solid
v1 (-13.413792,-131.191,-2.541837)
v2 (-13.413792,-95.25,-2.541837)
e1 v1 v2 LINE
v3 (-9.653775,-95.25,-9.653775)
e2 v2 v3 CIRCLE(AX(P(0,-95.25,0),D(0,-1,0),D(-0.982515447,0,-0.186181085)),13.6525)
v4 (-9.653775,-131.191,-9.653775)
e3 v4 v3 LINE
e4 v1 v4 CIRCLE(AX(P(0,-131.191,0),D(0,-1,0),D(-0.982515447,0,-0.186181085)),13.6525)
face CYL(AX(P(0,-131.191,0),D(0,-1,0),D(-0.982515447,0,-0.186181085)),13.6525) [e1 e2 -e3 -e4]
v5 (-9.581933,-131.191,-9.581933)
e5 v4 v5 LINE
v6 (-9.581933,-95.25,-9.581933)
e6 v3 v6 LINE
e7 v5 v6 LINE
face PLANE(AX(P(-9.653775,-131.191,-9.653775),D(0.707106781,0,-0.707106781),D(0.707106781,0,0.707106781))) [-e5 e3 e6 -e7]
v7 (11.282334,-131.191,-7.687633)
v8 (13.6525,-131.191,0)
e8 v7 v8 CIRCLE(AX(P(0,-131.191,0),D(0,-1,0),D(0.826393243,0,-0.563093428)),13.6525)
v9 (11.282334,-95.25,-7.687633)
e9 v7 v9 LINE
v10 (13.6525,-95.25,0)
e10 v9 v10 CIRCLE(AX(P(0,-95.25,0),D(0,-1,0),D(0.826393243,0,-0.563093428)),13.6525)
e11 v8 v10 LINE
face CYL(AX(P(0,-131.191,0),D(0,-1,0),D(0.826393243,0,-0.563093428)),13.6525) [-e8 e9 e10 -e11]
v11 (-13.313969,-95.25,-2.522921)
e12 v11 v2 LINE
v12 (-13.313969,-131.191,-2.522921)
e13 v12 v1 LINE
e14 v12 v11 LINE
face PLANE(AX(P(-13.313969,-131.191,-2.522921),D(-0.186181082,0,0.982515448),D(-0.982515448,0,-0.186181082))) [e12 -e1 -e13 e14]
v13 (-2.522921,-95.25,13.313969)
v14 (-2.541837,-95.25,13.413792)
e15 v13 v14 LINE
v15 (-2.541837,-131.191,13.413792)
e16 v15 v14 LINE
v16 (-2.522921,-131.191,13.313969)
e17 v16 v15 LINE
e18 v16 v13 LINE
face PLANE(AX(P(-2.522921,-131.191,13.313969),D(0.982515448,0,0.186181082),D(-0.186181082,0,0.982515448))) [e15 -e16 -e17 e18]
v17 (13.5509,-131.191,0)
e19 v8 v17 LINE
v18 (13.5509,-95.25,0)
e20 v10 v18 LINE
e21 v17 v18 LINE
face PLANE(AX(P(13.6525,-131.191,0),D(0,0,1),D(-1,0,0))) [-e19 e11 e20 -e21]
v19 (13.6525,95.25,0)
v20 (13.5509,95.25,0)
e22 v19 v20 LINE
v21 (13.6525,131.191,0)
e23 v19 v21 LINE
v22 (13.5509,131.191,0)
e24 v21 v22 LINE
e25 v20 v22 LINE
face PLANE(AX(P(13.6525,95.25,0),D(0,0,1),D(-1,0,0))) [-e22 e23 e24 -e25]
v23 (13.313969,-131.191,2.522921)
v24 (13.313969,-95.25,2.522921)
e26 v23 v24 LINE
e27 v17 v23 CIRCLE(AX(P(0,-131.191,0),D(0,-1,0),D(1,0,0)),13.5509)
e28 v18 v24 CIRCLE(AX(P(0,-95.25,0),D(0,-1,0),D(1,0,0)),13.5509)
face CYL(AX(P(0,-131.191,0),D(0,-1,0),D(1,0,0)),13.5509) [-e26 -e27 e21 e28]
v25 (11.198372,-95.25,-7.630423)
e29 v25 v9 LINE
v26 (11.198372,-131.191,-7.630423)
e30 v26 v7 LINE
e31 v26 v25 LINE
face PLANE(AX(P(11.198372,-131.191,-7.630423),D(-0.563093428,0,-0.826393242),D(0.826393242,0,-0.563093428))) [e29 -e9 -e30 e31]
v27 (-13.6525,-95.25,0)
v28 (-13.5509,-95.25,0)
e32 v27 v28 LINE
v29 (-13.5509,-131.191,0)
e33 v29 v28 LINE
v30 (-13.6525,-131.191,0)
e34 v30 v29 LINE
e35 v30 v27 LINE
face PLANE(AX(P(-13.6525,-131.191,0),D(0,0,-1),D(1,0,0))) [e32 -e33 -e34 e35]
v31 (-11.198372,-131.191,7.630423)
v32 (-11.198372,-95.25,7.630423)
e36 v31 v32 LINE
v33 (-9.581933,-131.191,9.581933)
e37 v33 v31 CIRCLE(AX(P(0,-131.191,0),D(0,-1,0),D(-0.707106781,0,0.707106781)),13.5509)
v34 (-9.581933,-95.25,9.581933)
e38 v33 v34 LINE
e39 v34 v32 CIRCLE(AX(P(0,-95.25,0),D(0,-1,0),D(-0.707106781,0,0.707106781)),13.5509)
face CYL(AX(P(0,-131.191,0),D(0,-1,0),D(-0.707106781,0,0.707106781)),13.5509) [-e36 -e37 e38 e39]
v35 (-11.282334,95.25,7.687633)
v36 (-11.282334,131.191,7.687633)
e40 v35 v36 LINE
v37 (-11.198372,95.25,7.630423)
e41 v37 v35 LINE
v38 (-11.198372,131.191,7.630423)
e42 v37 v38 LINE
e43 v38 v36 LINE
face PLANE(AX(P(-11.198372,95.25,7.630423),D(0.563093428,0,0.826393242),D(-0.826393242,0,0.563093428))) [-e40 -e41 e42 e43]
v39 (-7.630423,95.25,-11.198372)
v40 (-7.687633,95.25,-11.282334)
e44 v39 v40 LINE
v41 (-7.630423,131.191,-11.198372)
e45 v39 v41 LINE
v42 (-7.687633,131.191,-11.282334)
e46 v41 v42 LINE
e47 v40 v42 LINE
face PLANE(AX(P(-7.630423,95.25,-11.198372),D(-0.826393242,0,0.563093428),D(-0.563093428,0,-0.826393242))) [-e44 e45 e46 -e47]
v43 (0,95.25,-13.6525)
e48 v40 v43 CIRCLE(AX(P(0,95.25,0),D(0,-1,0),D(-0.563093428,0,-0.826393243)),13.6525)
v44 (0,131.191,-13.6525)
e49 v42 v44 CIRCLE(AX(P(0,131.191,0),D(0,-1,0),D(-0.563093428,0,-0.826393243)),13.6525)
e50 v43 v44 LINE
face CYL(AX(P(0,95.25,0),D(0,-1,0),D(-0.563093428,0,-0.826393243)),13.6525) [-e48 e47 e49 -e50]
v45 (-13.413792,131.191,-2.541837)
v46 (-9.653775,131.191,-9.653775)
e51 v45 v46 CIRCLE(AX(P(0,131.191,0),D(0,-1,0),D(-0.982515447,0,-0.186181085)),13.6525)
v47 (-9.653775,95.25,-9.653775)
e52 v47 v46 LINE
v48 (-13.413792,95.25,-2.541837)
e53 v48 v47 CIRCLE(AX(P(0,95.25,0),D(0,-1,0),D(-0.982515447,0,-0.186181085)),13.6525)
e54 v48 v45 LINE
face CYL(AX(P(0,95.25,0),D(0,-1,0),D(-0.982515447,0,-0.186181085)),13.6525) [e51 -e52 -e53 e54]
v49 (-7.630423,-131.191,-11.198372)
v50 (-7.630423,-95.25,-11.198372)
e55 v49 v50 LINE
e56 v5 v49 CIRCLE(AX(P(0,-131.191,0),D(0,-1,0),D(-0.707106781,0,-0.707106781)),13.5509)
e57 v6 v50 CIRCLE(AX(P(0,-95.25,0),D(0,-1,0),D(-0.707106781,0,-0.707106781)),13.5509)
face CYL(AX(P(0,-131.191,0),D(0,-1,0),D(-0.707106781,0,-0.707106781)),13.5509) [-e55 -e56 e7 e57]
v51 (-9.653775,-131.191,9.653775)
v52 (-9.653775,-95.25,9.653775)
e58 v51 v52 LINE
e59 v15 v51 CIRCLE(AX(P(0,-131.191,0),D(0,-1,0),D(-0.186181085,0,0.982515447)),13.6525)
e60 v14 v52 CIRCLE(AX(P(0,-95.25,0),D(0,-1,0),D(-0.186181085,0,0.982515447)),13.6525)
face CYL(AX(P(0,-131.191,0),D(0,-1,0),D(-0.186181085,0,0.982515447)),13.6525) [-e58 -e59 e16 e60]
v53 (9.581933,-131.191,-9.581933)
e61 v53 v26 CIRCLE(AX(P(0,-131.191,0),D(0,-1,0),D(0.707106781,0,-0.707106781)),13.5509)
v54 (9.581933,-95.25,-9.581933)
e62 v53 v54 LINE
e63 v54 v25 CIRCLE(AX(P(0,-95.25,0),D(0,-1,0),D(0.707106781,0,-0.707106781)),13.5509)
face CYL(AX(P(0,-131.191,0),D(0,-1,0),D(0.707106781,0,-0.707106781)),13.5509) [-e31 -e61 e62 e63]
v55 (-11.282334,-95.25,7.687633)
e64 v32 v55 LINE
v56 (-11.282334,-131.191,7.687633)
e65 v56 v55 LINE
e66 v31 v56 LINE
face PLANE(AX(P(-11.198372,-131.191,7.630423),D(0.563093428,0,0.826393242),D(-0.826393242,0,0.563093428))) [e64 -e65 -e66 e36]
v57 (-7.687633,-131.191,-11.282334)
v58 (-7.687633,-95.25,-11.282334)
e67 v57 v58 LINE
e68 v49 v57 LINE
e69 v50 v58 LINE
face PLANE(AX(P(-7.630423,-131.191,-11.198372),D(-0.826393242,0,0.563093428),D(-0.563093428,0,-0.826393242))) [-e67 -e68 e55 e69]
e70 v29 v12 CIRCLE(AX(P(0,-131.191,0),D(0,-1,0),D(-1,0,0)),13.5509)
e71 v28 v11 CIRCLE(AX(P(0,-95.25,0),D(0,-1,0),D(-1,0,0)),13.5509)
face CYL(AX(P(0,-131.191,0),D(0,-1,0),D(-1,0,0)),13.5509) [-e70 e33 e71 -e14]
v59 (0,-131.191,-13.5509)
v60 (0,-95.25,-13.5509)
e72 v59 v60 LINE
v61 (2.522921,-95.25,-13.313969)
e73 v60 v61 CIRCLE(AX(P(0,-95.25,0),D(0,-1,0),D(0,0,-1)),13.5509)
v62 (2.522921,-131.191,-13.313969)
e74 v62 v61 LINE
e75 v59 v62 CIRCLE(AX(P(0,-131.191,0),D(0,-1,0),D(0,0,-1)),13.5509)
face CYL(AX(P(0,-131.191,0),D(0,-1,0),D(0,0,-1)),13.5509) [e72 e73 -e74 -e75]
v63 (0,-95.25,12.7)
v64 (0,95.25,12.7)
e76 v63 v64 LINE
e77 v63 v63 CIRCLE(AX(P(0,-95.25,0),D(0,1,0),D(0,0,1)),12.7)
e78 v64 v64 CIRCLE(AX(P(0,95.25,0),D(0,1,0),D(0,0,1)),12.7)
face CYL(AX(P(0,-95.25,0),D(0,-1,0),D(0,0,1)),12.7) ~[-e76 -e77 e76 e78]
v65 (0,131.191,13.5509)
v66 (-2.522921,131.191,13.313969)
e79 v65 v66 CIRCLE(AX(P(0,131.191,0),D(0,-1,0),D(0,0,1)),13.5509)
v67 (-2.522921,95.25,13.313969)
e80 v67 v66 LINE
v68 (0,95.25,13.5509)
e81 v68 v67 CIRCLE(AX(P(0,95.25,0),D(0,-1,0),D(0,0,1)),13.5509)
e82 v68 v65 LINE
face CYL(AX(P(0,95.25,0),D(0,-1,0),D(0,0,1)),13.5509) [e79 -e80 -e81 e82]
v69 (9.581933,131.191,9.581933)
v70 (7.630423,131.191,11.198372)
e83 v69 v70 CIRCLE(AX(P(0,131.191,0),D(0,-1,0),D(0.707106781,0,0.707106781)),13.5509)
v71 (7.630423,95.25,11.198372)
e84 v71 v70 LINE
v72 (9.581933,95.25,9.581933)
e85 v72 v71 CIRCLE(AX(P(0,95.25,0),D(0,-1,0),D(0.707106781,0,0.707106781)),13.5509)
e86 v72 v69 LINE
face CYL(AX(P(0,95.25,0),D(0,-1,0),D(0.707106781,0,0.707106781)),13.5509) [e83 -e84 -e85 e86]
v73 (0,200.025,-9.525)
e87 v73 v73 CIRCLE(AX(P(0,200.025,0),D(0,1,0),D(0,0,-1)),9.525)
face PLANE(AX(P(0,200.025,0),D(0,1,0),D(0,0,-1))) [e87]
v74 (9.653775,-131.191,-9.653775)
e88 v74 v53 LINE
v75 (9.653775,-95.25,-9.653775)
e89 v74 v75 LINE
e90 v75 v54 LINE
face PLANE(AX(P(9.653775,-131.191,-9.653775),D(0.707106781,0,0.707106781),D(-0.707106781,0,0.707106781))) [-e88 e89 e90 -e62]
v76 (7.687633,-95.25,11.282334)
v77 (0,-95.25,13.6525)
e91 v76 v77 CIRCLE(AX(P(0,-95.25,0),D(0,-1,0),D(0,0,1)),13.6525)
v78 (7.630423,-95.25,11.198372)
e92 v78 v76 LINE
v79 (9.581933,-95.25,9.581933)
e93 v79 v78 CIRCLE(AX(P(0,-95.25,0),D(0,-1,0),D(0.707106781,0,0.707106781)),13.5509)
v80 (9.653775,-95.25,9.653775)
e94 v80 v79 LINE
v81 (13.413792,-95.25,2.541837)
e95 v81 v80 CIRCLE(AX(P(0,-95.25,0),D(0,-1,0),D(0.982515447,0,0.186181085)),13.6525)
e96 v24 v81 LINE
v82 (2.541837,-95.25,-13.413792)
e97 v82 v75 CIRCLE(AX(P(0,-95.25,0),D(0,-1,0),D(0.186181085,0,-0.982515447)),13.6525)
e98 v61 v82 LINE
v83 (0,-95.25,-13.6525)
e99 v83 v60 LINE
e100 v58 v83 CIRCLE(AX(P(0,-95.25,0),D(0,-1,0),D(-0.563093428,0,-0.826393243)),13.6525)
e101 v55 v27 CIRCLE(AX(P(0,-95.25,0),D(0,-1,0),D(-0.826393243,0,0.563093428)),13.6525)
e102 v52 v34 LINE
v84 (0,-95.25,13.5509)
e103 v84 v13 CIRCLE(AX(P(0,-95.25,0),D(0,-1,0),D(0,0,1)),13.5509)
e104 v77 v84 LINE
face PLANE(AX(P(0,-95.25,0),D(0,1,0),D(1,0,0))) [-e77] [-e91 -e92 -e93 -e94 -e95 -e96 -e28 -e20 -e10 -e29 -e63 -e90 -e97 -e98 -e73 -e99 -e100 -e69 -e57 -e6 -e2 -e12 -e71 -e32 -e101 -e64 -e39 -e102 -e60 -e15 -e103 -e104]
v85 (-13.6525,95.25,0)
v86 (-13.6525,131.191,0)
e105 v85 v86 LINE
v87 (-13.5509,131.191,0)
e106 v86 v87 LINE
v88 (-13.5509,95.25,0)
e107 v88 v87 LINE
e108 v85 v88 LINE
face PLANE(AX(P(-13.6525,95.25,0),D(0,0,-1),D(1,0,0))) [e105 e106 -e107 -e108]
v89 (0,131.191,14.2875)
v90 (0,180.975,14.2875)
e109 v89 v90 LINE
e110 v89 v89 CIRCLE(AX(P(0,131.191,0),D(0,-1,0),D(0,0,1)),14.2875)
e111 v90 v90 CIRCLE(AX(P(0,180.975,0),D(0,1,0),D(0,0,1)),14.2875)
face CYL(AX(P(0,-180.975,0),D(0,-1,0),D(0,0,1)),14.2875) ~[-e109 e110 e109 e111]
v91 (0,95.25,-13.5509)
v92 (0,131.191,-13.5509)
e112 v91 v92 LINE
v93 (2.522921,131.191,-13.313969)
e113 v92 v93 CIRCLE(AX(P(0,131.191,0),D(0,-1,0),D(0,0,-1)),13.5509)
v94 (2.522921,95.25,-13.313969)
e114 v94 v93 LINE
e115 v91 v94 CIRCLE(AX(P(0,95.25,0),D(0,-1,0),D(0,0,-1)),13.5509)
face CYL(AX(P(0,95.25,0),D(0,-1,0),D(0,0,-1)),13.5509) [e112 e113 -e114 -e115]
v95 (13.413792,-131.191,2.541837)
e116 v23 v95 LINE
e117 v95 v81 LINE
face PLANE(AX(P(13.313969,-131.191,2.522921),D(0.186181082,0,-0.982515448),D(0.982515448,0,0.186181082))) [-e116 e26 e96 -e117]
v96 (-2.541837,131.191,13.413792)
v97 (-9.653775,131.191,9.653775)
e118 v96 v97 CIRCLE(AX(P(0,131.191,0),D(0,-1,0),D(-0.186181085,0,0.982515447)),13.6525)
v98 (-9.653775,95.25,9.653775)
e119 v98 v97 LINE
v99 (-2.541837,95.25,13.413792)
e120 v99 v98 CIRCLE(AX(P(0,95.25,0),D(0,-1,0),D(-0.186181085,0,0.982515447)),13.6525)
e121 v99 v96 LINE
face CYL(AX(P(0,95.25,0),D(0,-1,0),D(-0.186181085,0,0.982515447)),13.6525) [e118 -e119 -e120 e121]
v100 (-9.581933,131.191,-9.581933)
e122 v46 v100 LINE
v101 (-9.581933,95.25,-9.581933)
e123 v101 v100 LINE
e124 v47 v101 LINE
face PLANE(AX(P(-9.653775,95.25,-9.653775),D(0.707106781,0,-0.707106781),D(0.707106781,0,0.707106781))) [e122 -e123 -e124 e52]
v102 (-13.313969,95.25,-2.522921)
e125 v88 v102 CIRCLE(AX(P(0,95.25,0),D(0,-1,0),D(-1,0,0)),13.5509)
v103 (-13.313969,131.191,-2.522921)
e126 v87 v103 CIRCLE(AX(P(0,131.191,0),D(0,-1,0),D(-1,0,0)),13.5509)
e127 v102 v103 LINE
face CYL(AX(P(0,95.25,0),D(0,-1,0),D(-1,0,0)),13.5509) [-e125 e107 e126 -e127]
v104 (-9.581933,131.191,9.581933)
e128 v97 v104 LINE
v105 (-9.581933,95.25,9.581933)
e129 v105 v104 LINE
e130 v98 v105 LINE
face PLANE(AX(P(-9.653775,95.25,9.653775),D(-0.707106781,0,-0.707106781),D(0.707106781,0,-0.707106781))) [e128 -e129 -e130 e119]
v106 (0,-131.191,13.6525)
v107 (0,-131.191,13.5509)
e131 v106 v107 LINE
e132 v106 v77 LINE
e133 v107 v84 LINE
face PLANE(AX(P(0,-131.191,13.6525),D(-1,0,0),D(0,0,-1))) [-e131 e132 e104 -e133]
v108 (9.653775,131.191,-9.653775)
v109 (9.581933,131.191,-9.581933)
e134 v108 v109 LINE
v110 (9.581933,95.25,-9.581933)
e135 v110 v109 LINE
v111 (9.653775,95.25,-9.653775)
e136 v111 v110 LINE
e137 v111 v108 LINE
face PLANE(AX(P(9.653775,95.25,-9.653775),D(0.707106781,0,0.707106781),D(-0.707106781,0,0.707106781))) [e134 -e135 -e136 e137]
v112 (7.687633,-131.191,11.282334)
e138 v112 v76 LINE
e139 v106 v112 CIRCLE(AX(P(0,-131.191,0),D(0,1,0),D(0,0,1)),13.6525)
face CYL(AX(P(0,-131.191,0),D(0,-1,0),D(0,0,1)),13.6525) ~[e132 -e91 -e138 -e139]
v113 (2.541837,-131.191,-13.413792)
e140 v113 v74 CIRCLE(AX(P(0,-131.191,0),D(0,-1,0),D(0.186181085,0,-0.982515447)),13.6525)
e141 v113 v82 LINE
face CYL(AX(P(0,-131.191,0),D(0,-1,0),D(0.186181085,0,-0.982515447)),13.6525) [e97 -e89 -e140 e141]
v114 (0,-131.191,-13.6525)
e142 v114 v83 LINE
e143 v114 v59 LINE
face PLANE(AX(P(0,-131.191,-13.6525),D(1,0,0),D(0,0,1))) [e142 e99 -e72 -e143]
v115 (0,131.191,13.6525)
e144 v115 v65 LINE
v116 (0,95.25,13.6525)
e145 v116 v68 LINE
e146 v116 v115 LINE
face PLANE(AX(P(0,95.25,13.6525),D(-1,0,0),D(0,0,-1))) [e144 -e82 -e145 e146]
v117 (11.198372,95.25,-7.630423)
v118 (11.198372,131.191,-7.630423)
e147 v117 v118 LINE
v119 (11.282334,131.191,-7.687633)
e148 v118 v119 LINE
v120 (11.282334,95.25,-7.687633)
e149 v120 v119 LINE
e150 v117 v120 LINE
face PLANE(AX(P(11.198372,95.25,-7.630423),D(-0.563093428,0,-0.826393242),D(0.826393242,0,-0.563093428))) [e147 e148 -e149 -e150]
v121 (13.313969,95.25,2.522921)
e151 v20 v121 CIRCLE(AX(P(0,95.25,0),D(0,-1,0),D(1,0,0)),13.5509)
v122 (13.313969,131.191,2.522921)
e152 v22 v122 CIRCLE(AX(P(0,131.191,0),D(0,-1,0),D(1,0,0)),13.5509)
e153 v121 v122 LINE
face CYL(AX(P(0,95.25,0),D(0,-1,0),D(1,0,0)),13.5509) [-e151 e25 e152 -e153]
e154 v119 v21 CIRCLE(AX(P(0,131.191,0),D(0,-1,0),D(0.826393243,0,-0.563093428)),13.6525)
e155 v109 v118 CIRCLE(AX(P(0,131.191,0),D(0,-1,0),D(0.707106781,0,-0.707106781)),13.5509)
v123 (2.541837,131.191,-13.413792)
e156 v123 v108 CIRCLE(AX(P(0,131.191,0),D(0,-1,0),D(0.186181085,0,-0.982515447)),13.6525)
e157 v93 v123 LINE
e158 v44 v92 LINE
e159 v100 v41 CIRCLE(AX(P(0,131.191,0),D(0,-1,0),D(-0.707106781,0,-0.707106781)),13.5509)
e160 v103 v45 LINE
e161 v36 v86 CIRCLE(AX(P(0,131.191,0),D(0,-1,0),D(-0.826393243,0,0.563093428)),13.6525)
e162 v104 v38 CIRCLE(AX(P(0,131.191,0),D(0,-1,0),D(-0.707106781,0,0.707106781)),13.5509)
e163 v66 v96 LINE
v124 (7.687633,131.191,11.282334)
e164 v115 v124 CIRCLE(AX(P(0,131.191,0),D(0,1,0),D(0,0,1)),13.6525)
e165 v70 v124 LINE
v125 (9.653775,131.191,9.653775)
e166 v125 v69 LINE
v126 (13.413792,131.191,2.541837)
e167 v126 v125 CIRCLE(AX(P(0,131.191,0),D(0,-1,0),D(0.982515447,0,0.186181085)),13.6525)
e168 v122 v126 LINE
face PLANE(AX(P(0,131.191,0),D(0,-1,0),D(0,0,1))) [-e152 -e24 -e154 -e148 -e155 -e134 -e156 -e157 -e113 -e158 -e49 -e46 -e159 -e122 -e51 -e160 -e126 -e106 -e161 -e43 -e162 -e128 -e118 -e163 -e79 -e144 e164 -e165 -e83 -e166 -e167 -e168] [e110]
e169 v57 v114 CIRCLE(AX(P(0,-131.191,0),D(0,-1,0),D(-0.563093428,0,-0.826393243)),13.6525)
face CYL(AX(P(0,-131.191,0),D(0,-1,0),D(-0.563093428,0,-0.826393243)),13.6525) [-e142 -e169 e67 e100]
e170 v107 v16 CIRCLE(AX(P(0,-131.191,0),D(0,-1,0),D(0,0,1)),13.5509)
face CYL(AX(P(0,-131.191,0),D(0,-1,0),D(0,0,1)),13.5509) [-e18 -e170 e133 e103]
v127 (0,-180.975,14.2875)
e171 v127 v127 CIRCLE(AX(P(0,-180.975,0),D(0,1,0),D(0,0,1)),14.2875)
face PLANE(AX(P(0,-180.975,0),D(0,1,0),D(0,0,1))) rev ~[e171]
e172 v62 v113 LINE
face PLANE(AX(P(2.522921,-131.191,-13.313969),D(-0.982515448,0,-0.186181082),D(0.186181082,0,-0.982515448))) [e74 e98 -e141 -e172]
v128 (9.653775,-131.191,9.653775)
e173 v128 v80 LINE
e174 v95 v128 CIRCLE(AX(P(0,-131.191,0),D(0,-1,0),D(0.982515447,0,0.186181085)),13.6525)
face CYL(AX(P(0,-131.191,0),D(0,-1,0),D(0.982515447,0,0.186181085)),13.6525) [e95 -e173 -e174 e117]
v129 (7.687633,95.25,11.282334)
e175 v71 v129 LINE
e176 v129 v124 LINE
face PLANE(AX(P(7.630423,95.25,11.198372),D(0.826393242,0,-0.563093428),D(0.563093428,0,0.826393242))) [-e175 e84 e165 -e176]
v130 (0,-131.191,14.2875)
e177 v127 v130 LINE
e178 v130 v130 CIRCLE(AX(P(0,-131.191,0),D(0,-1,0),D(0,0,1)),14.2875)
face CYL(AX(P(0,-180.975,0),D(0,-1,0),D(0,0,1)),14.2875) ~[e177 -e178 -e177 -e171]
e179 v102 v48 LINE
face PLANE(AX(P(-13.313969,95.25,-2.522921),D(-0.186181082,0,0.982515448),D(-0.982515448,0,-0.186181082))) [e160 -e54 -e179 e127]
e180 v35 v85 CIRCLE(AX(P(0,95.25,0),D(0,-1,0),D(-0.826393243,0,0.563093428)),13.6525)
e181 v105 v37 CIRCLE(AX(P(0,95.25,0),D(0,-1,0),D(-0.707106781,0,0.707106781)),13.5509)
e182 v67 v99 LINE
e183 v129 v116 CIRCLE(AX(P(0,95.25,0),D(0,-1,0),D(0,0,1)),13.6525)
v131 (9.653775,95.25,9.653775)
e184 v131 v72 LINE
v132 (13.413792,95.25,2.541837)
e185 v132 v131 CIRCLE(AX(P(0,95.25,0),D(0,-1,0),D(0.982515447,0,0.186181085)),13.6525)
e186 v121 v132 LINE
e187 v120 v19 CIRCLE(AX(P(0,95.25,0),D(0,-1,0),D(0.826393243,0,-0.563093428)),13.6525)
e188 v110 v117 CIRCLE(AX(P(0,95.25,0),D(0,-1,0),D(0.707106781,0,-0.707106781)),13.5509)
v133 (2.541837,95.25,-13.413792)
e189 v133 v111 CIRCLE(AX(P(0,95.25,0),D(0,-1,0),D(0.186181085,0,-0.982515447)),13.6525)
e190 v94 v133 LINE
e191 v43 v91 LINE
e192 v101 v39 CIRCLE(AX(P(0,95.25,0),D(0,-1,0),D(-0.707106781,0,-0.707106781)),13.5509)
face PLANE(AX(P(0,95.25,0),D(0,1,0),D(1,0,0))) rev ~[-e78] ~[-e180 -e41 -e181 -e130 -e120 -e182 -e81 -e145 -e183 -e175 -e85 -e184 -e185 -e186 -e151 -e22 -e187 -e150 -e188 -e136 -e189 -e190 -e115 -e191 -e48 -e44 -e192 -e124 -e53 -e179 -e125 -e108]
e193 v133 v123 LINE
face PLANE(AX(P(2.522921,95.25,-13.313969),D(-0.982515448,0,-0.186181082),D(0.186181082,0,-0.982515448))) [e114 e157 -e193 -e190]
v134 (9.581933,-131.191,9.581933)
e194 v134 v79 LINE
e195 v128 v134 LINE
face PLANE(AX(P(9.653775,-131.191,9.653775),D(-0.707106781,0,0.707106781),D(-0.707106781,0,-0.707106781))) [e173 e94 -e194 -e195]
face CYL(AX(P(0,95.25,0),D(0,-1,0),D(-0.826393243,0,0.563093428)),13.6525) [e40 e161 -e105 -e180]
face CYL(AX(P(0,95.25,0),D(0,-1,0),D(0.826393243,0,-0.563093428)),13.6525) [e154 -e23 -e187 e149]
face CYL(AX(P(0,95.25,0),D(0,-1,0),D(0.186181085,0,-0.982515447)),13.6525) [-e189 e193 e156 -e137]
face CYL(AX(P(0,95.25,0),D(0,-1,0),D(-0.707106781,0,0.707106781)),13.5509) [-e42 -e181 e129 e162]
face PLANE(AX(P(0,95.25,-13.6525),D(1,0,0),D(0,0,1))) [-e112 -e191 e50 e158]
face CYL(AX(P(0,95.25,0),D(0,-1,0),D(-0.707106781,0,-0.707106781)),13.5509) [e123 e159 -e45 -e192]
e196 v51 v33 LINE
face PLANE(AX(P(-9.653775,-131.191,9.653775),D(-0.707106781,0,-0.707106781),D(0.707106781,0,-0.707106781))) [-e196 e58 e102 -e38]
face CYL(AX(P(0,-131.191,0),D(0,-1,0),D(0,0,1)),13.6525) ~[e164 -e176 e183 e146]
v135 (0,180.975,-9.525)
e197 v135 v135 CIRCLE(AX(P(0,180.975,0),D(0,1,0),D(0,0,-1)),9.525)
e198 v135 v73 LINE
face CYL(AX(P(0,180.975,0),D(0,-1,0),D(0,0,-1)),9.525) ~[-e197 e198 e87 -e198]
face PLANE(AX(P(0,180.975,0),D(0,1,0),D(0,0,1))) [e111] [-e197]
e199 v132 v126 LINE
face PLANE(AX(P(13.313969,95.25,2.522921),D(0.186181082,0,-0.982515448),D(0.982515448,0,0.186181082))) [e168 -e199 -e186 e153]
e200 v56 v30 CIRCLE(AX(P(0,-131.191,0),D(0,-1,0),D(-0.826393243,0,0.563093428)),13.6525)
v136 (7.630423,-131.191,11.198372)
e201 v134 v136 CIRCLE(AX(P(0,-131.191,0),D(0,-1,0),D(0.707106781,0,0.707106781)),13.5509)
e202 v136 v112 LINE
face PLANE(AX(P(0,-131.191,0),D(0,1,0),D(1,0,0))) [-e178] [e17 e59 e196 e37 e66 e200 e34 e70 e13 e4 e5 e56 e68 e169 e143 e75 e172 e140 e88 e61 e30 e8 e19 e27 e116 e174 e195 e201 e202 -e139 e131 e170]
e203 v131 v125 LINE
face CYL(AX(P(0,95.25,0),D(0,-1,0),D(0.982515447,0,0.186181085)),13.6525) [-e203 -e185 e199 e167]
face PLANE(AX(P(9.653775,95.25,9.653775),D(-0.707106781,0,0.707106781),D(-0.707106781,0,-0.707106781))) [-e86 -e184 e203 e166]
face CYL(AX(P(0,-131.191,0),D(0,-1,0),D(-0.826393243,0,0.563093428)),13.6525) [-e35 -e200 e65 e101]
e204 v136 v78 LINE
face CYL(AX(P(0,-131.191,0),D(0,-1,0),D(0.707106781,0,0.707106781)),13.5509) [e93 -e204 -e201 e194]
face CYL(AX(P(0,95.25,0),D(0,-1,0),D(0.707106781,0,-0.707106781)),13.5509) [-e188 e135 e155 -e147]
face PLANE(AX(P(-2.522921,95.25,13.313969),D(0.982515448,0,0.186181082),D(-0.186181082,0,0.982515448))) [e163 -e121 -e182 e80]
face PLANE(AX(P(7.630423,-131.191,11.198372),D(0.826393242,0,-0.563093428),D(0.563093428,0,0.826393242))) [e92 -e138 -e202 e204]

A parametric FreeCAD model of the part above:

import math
import FreeCAD as App
import Part
import Sketcher

V = App.Vector
Q = App.Units.Quantity

doc = App.newDocument("Part")
body = doc.addObject("PartDesign::Body", "Body")

sketch1 = body.newObject("Sketcher::SketchObject", "Sketch")
sketch1.AttachmentSupport = (doc.getObject("XZ_Plane"), [""])
sketch1.MapMode = "FlatFace"
sketch1.addGeometry(Part.Circle(V(0, 0, 0), V(0, 0, 1), 14.2875), False)
sketch1.addConstraint([
    Sketcher.Constraint("Coincident", 0, 3, -1, 1),
    Sketcher.Constraint("Diameter", 0, Q("1.125 in")),
])
pad1 = body.newObject("PartDesign::Pad", "Pad")
pad1.Profile = sketch1
pad1.Type = "TwoLengths"
pad1.Length = Q("7.125 in")
pad1.Length2 = Q("7.125 in")
pad1.Reversed = True

sketch2 = body.newObject("Sketcher::SketchObject", "Sketch001")
sketch2.AttachmentSupport = (doc.getObject("XZ_Plane"), [""])
sketch2.MapMode = "FlatFace"
sketch2.addGeometry([
    Part.LineSegment(V(-51.708, -51.708, 0), V(-51.708, 51.708, 0)),
    Part.LineSegment(V(-51.708, 51.708, 0), V(51.708, 51.708, 0)),
    Part.LineSegment(V(51.708, 51.708, 0), V(51.708, -51.708, 0)),
    Part.LineSegment(V(51.708, -51.708, 0), V(-51.708, -51.708, 0)),
    Part.Circle(V(0, 0, 0), V(0, 0, 1), 12.7),
], False)
sketch2.addConstraint([
    Sketcher.Constraint("Coincident", 0, 2, 1, 1),
    Sketcher.Constraint("Coincident", 1, 2, 2, 1),
    Sketcher.Constraint("Coincident", 2, 2, 3, 1),
    Sketcher.Constraint("Coincident", 3, 2, 0, 1),
    Sketcher.Constraint("Vertical", 0),
    Sketcher.Constraint("Horizontal", 1),
    Sketcher.Constraint("Vertical", 2),
    Sketcher.Constraint("Horizontal", 3),
    Sketcher.Constraint("Coincident", 4, 3, -1, 1),
    Sketcher.Constraint("Symmetric", 0, 2, 2, 2, -1, 1),
    Sketcher.Constraint("Equal", 3, 0),
    Sketcher.Constraint("Diameter", 4, Q("1 in")),
    Sketcher.Constraint("DistanceX", 1, 1, 1, 2, 103.416),
])
pocket1 = body.newObject("PartDesign::Pocket", "Pocket")
pocket1.Profile = sketch2
pocket1.Type = "TwoLengths"
pocket1.Length = Q("3.75 in")
pocket1.Length2 = Q("3.75 in")

sketch3 = body.newObject("Sketcher::SketchObject", "Sketch002")
sketch3.AttachmentSupport = (doc.getObject("XZ_Plane"), [""])
sketch3.MapMode = "FlatFace"
sketch3.addGeometry([
    Part.LineSegment(V(-51.708, -51.708, 0), V(-51.708, 51.708, 0)),
    Part.LineSegment(V(-51.708, 51.708, 0), V(51.708, 51.708, 0)),
    Part.LineSegment(V(51.708, 51.708, 0), V(51.708, -51.708, 0)),
    Part.LineSegment(V(51.708, -51.708, 0), V(-51.708, -51.708, 0)),
    Part.Circle(V(0, 0, 0), V(0, 0, 1), 13.6525),
], False)
sketch3.addConstraint([
    Sketcher.Constraint("Coincident", 0, 2, 1, 1),
    Sketcher.Constraint("Coincident", 1, 2, 2, 1),
    Sketcher.Constraint("Coincident", 2, 2, 3, 1),
    Sketcher.Constraint("Coincident", 3, 2, 0, 1),
    Sketcher.Constraint("Vertical", 0),
    Sketcher.Constraint("Horizontal", 1),
    Sketcher.Constraint("Vertical", 2),
    Sketcher.Constraint("Horizontal", 3),
    Sketcher.Constraint("Coincident", 4, 3, -1, 1),
    Sketcher.Constraint("Symmetric", 0, 2, 2, 2, -1, 1),
    Sketcher.Constraint("Equal", 3, 0),
    Sketcher.Constraint("Diameter", 4, Q("1.075 in")),
    Sketcher.Constraint("DistanceX", 1, 1, 1, 2, 103.416),
])
pocket2 = body.newObject("PartDesign::Pocket", "Pocket001")
pocket2.Profile = sketch3
pocket2.Type = "TwoLengths"
pocket2.Length = Q("5.165 in")
pocket2.Length2 = Q("5.165 in")

sketch4 = body.newObject("Sketcher::SketchObject", "Sketch003")
sketch4.AttachmentSupport = (doc.getObject("XZ_Plane"), [""])
sketch4.MapMode = "FlatFace"
sketch4.AttachmentOffset = App.Placement(V(0, 0, 5.165 * 25.4), App.Rotation())
sketch4.addGeometry([
    Part.LineSegment(V(-51.708, -51.708, 0), V(-51.708, 51.708, 0)),
    Part.LineSegment(V(-51.708, 51.708, 0), V(51.708, 51.708, 0)),
    Part.LineSegment(V(51.708, 51.708, 0), V(51.708, -51.708, 0)),
    Part.LineSegment(V(51.708, -51.708, 0), V(-51.708, -51.708, 0)),
    Part.ArcOfCircle(Part.Circle(V(0, 0, 0), V(0, 0, 1), 13.6525), math.radians(55.73), math.radians(90)),
    Part.LineSegment(V(0, 13.6525, 0), V(0, 13.5509, 0)),
    Part.ArcOfCircle(Part.Circle(V(0, 0, 0), V(0, 0, 1), 13.5509), math.radians(90), math.radians(100.73)),
    Part.LineSegment(V(-2.522921, 13.313969, 0), V(-2.541837, 13.413792, 0)),
    Part.ArcOfCircle(Part.Circle(V(0, 0, 0), V(0, 0, 1), 13.6525), math.radians(100.73), math.radians(135)),
    Part.LineSegment(V(-9.653775, 9.653775, 0), V(-9.581933, 9.581933, 0)),
    Part.ArcOfCircle(Part.Circle(V(0, 0, 0), V(0, 0, 1), 13.5509), math.radians(135), math.radians(145.73)),
    Part.LineSegment(V(-11.198372, 7.630423, 0), V(-11.282334, 7.687633, 0)),
    Part.ArcOfCircle(Part.Circle(V(0, 0, 0), V(0, 0, 1), 13.6525), math.radians(145.73), math.radians(180)),
    Part.LineSegment(V(-13.6525, 0, 0), V(-13.5509, 0, 0)),
    Part.ArcOfCircle(Part.Circle(V(0, 0, 0), V(0, 0, 1), 13.5509), math.radians(-180), math.radians(-169.27)),
    Part.LineSegment(V(-13.313969, -2.522921, 0), V(-13.413792, -2.541837, 0)),
    Part.ArcOfCircle(Part.Circle(V(0, 0, 0), V(0, 0, 1), 13.6525), math.radians(-169.27), math.radians(-135)),
    Part.LineSegment(V(-9.653775, -9.653775, 0), V(-9.581933, -9.581933, 0)),
    Part.ArcOfCircle(Part.Circle(V(0, 0, 0), V(0, 0, 1), 13.5509), math.radians(-135), math.radians(-124.27)),
    Part.LineSegment(V(-7.630423, -11.198372, 0), V(-7.687633, -11.282334, 0)),
    Part.ArcOfCircle(Part.Circle(V(0, 0, 0), V(0, 0, 1), 13.6525), math.radians(-124.27), math.radians(-90)),
    Part.LineSegment(V(0, -13.6525, 0), V(0, -13.5509, 0)),
    Part.ArcOfCircle(Part.Circle(V(0, 0, 0), V(0, 0, 1), 13.5509), math.radians(-90), math.radians(-79.27)),
    Part.LineSegment(V(2.522921, -13.313969, 0), V(2.541837, -13.413792, 0)),
    Part.ArcOfCircle(Part.Circle(V(0, 0, 0), V(0, 0, 1), 13.6525), math.radians(-79.27), math.radians(-45)),
    Part.LineSegment(V(9.653775, -9.653775, 0), V(9.581933, -9.581933, 0)),
    Part.ArcOfCircle(Part.Circle(V(0, 0, 0), V(0, 0, 1), 13.5509), math.radians(-45), math.radians(-34.27)),
    Part.LineSegment(V(11.198372, -7.630423, 0), V(11.282334, -7.687633, 0)),
    Part.ArcOfCircle(Part.Circle(V(0, 0, 0), V(0, 0, 1), 13.6525), math.radians(-34.27), math.radians(0)),
    Part.LineSegment(V(13.6525, 0, 0), V(13.5509, 0, 0)),
    Part.ArcOfCircle(Part.Circle(V(0, 0, 0), V(0, 0, 1), 13.5509), math.radians(0), math.radians(10.73)),
    Part.LineSegment(V(13.313969, 2.522921, 0), V(13.413792, 2.541837, 0)),
    Part.ArcOfCircle(Part.Circle(V(0, 0, 0), V(0, 0, 1), 13.6525), math.radians(10.73), math.radians(45)),
    Part.LineSegment(V(9.653775, 9.653775, 0), V(9.581933, 9.581933, 0)),
    Part.ArcOfCircle(Part.Circle(V(0, 0, 0), V(0, 0, 1), 13.5509), math.radians(45), math.radians(55.73)),
    Part.LineSegment(V(7.630423, 11.198372, 0), V(7.687633, 11.282334, 0)),
], False)
sketch4.addConstraint([
    Sketcher.Constraint("Coincident", 0, 2, 1, 1),
    Sketcher.Constraint("Coincident", 1, 2, 2, 1),
    Sketcher.Constraint("Coincident", 2, 2, 3, 1),
    Sketcher.Constraint("Coincident", 3, 2, 0, 1),
    Sketcher.Constraint("Coincident", 4, 2, 5, 1),
    Sketcher.Constraint("Coincident", 5, 2, 6, 1),
    Sketcher.Constraint("Coincident", 6, 2, 7, 1),
    Sketcher.Constraint("Coincident", 7, 2, 8, 1),
    Sketcher.Constraint("Coincident", 8, 2, 9, 1),
    Sketcher.Constraint("Coincident", 9, 2, 10, 1),
    Sketcher.Constraint("Coincident", 10, 2, 11, 1),
    Sketcher.Constraint("Coincident", 11, 2, 12, 1),
    Sketcher.Constraint("Coincident", 12, 2, 13, 1),
    Sketcher.Constraint("Coincident", 13, 2, 14, 1),
    Sketcher.Constraint("Coincident", 14, 2, 15, 1),
    Sketcher.Constraint("Coincident", 15, 2, 16, 1),
    Sketcher.Constraint("Coincident", 16, 2, 17, 1),
    Sketcher.Constraint("Coincident", 17, 2, 18, 1),
    Sketcher.Constraint("Coincident", 18, 2, 19, 1),
    Sketcher.Constraint("Coincident", 19, 2, 20, 1),
    Sketcher.Constraint("Coincident", 20, 2, 21, 1),
    Sketcher.Constraint("Coincident", 21, 2, 22, 1),
    Sketcher.Constraint("Coincident", 22, 2, 23, 1),
    Sketcher.Constraint("Coincident", 23, 2, 24, 1),
    Sketcher.Constraint("Coincident", 24, 2, 25, 1),
    Sketcher.Constraint("Coincident", 25, 2, 26, 1),
    Sketcher.Constraint("Coincident", 26, 2, 27, 1),
    Sketcher.Constraint("Coincident", 27, 2, 28, 1),
    Sketcher.Constraint("Coincident", 28, 2, 29, 1),
    Sketcher.Constraint("Coincident", 29, 2, 30, 1),
    Sketcher.Constraint("Coincident", 30, 2, 31, 1),
    Sketcher.Constraint("Coincident", 31, 2, 32, 1),
    Sketcher.Constraint("Coincident", 32, 2, 33, 1),
    Sketcher.Constraint("Coincident", 33, 2, 34, 1),
    Sketcher.Constraint("Coincident", 34, 2, 35, 1),
    Sketcher.Constraint("Coincident", 35, 2, 4, 1),
    Sketcher.Constraint("Vertical", 0),
    Sketcher.Constraint("Horizontal", 1),
    Sketcher.Constraint("Vertical", 2),
    Sketcher.Constraint("Horizontal", 3),
    Sketcher.Constraint("Vertical", 5),
    Sketcher.Constraint("Horizontal", 13),
    Sketcher.Constraint("Vertical", 21),
    Sketcher.Constraint("Horizontal", 29),
    Sketcher.Constraint("Coincident", 4, 3, -1, 1),
    Sketcher.Constraint("Coincident", 6, 3, -1, 1),
    Sketcher.Constraint("Coincident", 8, 3, -1, 1),
    Sketcher.Constraint("Coincident", 10, 3, -1, 1),
    Sketcher.Constraint("Coincident", 12, 3, -1, 1),
    Sketcher.Constraint("Coincident", 14, 3, -1, 1),
    Sketcher.Constraint("Coincident", 16, 3, -1, 1),
    Sketcher.Constraint("Coincident", 18, 3, -1, 1),
    Sketcher.Constraint("Coincident", 20, 3, -1, 1),
    Sketcher.Constraint("Coincident", 22, 3, -1, 1),
    Sketcher.Constraint("Coincident", 24, 3, -1, 1),
    Sketcher.Constraint("Coincident", 26, 3, -1, 1),
    Sketcher.Constraint("Coincident", 28, 3, -1, 1),
    Sketcher.Constraint("Coincident", 30, 3, -1, 1),
    Sketcher.Constraint("Coincident", 32, 3, -1, 1),
    Sketcher.Constraint("Coincident", 34, 3, -1, 1),
    Sketcher.Constraint("Equal", 4, 8),
    Sketcher.Constraint("Equal", 6, 10),
    Sketcher.Constraint("Equal", 8, 12),
    Sketcher.Constraint("Equal", 10, 14),
    Sketcher.Constraint("Equal", 12, 16),
    Sketcher.Constraint("Equal", 14, 18),
    Sketcher.Constraint("Equal", 16, 20),
    Sketcher.Constraint("Equal", 18, 22),
    Sketcher.Constraint("Equal", 20, 24),
    Sketcher.Constraint("Equal", 22, 26),
    Sketcher.Constraint("Equal", 24, 28),
    Sketcher.Constraint("Equal", 26, 30),
    Sketcher.Constraint("Equal", 28, 32),
    Sketcher.Constraint("Equal", 30, 34),
    Sketcher.Constraint("Symmetric", 0, 2, 2, 2, -1, 1),
    Sketcher.Constraint("PointOnObject", 4, 2, -2),
    Sketcher.Constraint("PointOnObject", 12, 2, -1),
    Sketcher.Constraint("PointOnObject", 20, 2, -2),
    Sketcher.Constraint("PointOnObject", 28, 2, -1),
    Sketcher.Constraint("Perpendicular", 7, 15),
    Sketcher.Constraint("Perpendicular", 9, 17),
    Sketcher.Constraint("Perpendicular", 11, 19),
    Sketcher.Constraint("Perpendicular", 15, 23),
    Sketcher.Constraint("Perpendicular", 17, 25),
    Sketcher.Constraint("Perpendicular", 19, 27),
    Sketcher.Constraint("Perpendicular", 23, 31),
    Sketcher.Constraint("Perpendicular", 25, 33),
    Sketcher.Constraint("Perpendicular", 27, 35),
    Sketcher.Constraint("Horizontal", 16, 2, 24, 2),
    Sketcher.Constraint("Horizontal", 17, 2, 25, 2),
    Sketcher.Constraint("Horizontal", 8, 2, 32, 2),
    Sketcher.Constraint("Vertical", 8, 2, 16, 2),
    Sketcher.Constraint("Equal", 3, 0),
    Sketcher.Constraint("Radius", 4, Q("0.5375 in")),
    Sketcher.Constraint("Radius", 6, Q("0.5335 in")),
    Sketcher.Constraint("Angle", 7, Q("100.73 deg")),
    Sketcher.Constraint("Angle", 11, Q("145.73 deg")),
    Sketcher.Constraint("DistanceX", 1, 1, 1, 2, 103.416),
    Sketcher.Constraint("DistanceX", 11, 2, 9, 2, 1.7004),
    Sketcher.Constraint("DistanceY", 11, 2, 9, 2, 1.8943),
    Sketcher.Constraint("DistanceX", 17, 2, 19, 2, 1.8943),
    Sketcher.Constraint("DistanceX", 25, 2, 27, 2, 1.7004),
    Sketcher.Constraint("DistanceX", 35, 2, 33, 2, 1.8943),
    Sketcher.Constraint("DistanceX", 6, 2, -1, 1, 2.522921),
    Sketcher.Constraint("DistanceX", 14, 2, -1, 1, 13.313969),
    Sketcher.Constraint("DistanceX", -1, 1, 22, 2, 2.522921),
    Sketcher.Constraint("DistanceX", -1, 1, 30, 2, 13.313969),
])
pocket3 = body.newObject("PartDesign::Pocket", "Pocket002")
pocket3.Profile = sketch4
pocket3.Length = Q("1.415 in")

sketch5 = body.newObject("Sketcher::SketchObject", "Sketch004")
sketch5.AttachmentSupport = (doc.getObject("XZ_Plane"), [""])
sketch5.MapMode = "FlatFace"
sketch5.AttachmentOffset = App.Placement(V(0, 0, -3.75 * 25.4), App.Rotation())
sketch5.addGeometry([
    Part.Circle(V(0, 0, 0), V(0, 0, 1), 14.2875),
    Part.LineSegment(V(-13.5509, 0, 0), V(-13.6525, 0, 0)),
    Part.ArcOfCircle(Part.Circle(V(0, 0, 0), V(0, 0, 1), 13.6525), math.radians(145.73), math.radians(180)),
    Part.LineSegment(V(-11.282334, 7.687633, 0), V(-11.198372, 7.630423, 0)),
    Part.ArcOfCircle(Part.Circle(V(0, 0, 0), V(0, 0, 1), 13.5509), math.radians(135), math.radians(145.73)),
    Part.LineSegment(V(-9.581933, 9.581933, 0), V(-9.653775, 9.653775, 0)),
    Part.ArcOfCircle(Part.Circle(V(0, 0, 0), V(0, 0, 1), 13.6525), math.radians(100.73), math.radians(135)),
    Part.LineSegment(V(-2.541837, 13.413792, 0), V(-2.522921, 13.313969, 0)),
    Part.ArcOfCircle(Part.Circle(V(0, 0, 0), V(0, 0, 1), 13.5509), math.radians(90), math.radians(100.73)),
    Part.LineSegment(V(0, 13.5509, 0), V(0, 13.6525, 0)),
    Part.ArcOfCircle(Part.Circle(V(0, 0, 0), V(0, 0, 1), 13.6525), math.radians(55.73), math.radians(90)),
    Part.LineSegment(V(7.687633, 11.282334, 0), V(7.630423, 11.198372, 0)),
    Part.ArcOfCircle(Part.Circle(V(0, 0, 0), V(0, 0, 1), 13.5509), math.radians(45), math.radians(55.73)),
    Part.LineSegment(V(9.581933, 9.581933, 0), V(9.653775, 9.653775, 0)),
    Part.ArcOfCircle(Part.Circle(V(0, 0, 0), V(0, 0, 1), 13.6525), math.radians(10.73), math.radians(45)),
    Part.LineSegment(V(13.413792, 2.541837, 0), V(13.313969, 2.522921, 0)),
    Part.ArcOfCircle(Part.Circle(V(0, 0, 0), V(0, 0, 1), 13.5509), math.radians(0), math.radians(10.73)),
    Part.LineSegment(V(13.5509, 0, 0), V(13.6525, 0, 0)),
    Part.ArcOfCircle(Part.Circle(V(0, 0, 0), V(0, 0, 1), 13.6525), math.radians(-34.27), math.radians(0)),
    Part.LineSegment(V(11.282334, -7.687633, 0), V(11.198372, -7.630423, 0)),
    Part.ArcOfCircle(Part.Circle(V(0, 0, 0), V(0, 0, 1), 13.5509), math.radians(-45), math.radians(-34.27)),
    Part.LineSegment(V(9.581933, -9.581933, 0), V(9.653775, -9.653775, 0)),
    Part.ArcOfCircle(Part.Circle(V(0, 0, 0), V(0, 0, 1), 13.6525), math.radians(-79.27), math.radians(-45)),
    Part.LineSegment(V(2.541837, -13.413792, 0), V(2.522921, -13.313969, 0)),
    Part.ArcOfCircle(Part.Circle(V(0, 0, 0), V(0, 0, 1), 13.5509), math.radians(-90), math.radians(-79.27)),
    Part.LineSegment(V(0, -13.5509, 0), V(0, -13.6525, 0)),
    Part.ArcOfCircle(Part.Circle(V(0, 0, 0), V(0, 0, 1), 13.6525), math.radians(-124.27), math.radians(-90)),
    Part.LineSegment(V(-7.687633, -11.282334, 0), V(-7.630423, -11.198372, 0)),
    Part.ArcOfCircle(Part.Circle(V(0, 0, 0), V(0, 0, 1), 13.5509), math.radians(-135), math.radians(-124.27)),
    Part.LineSegment(V(-9.581933, -9.581933, 0), V(-9.653775, -9.653775, 0)),
    Part.ArcOfCircle(Part.Circle(V(0, 0, 0), V(0, 0, 1), 13.6525), math.radians(-169.27), math.radians(-135)),
    Part.LineSegment(V(-13.413792, -2.541837, 0), V(-13.313969, -2.522921, 0)),
    Part.ArcOfCircle(Part.Circle(V(0, 0, 0), V(0, 0, 1), 13.5509), math.radians(-180), math.radians(-169.27)),
], False)
sketch5.addConstraint([
    Sketcher.Constraint("Coincident", 1, 2, 2, 2),
    Sketcher.Constraint("Coincident", 2, 1, 3, 1),
    Sketcher.Constraint("Coincident", 3, 2, 4, 2),
    Sketcher.Constraint("Coincident", 4, 1, 5, 1),
    Sketcher.Constraint("Coincident", 5, 2, 6, 2),
    Sketcher.Constraint("Coincident", 6, 1, 7, 1),
    Sketcher.Constraint("Coincident", 7, 2, 8, 2),
    Sketcher.Constraint("Coincident", 8, 1, 9, 1),
    Sketcher.Constraint("Coincident", 9, 2, 10, 2),
    Sketcher.Constraint("Coincident", 10, 1, 11, 1),
    Sketcher.Constraint("Coincident", 11, 2, 12, 2),
    Sketcher.Constraint("Coincident", 12, 1, 13, 1),
    Sketcher.Constraint("Coincident", 13, 2, 14, 2),
    Sketcher.Constraint("Coincident", 14, 1, 15, 1),
    Sketcher.Constraint("Coincident", 15, 2, 16, 2),
    Sketcher.Constraint("Coincident", 16, 1, 17, 1),
    Sketcher.Constraint("Coincident", 17, 2, 18, 2),
    Sketcher.Constraint("Coincident", 18, 1, 19, 1),
    Sketcher.Constraint("Coincident", 19, 2, 20, 2),
    Sketcher.Constraint("Coincident", 20, 1, 21, 1),
    Sketcher.Constraint("Coincident", 21, 2, 22, 2),
    Sketcher.Constraint("Coincident", 22, 1, 23, 1),
    Sketcher.Constraint("Coincident", 23, 2, 24, 2),
    Sketcher.Constraint("Coincident", 24, 1, 25, 1),
    Sketcher.Constraint("Coincident", 25, 2, 26, 2),
    Sketcher.Constraint("Coincident", 26, 1, 27, 1),
    Sketcher.Constraint("Coincident", 27, 2, 28, 2),
    Sketcher.Constraint("Coincident", 28, 1, 29, 1),
    Sketcher.Constraint("Coincident", 29, 2, 30, 2),
    Sketcher.Constraint("Coincident", 30, 1, 31, 1),
    Sketcher.Constraint("Coincident", 31, 2, 32, 2),
    Sketcher.Constraint("Coincident", 32, 1, 1, 1),
    Sketcher.Constraint("Horizontal", 1),
    Sketcher.Constraint("Vertical", 9),
    Sketcher.Constraint("Horizontal", 17),
    Sketcher.Constraint("Vertical", 25),
    Sketcher.Constraint("Coincident", 0, 3, -1, 1),
    Sketcher.Constraint("Coincident", 2, 3, -1, 1),
    Sketcher.Constraint("Coincident", 4, 3, -1, 1),
    Sketcher.Constraint("Coincident", 6, 3, -1, 1),
    Sketcher.Constraint("Coincident", 8, 3, -1, 1),
    Sketcher.Constraint("Coincident", 10, 3, -1, 1),
    Sketcher.Constraint("Coincident", 12, 3, -1, 1),
    Sketcher.Constraint("Coincident", 14, 3, -1, 1),
    Sketcher.Constraint("Coincident", 16, 3, -1, 1),
    Sketcher.Constraint("Coincident", 18, 3, -1, 1),
    Sketcher.Constraint("Coincident", 20, 3, -1, 1),
    Sketcher.Constraint("Coincident", 22, 3, -1, 1),
    Sketcher.Constraint("Coincident", 24, 3, -1, 1),
    Sketcher.Constraint("Coincident", 26, 3, -1, 1),
    Sketcher.Constraint("Coincident", 28, 3, -1, 1),
    Sketcher.Constraint("Coincident", 30, 3, -1, 1),
    Sketcher.Constraint("Coincident", 32, 3, -1, 1),
    Sketcher.Constraint("Equal", 2, 6),
    Sketcher.Constraint("Equal", 4, 8),
    Sketcher.Constraint("Equal", 6, 10),
    Sketcher.Constraint("Equal", 8, 12),
    Sketcher.Constraint("Equal", 10, 14),
    Sketcher.Constraint("Equal", 12, 16),
    Sketcher.Constraint("Equal", 14, 18),
    Sketcher.Constraint("Equal", 16, 20),
    Sketcher.Constraint("Equal", 18, 22),
    Sketcher.Constraint("Equal", 20, 24),
    Sketcher.Constraint("Equal", 22, 26),
    Sketcher.Constraint("Equal", 24, 28),
    Sketcher.Constraint("Equal", 26, 30),
    Sketcher.Constraint("Equal", 28, 32),
    Sketcher.Constraint("PointOnObject", 1, 2, -1),
    Sketcher.Constraint("PointOnObject", 8, 1, -2),
    Sketcher.Constraint("PointOnObject", 16, 1, -1),
    Sketcher.Constraint("PointOnObject", 24, 1, -2),
    Sketcher.Constraint("Perpendicular", 3, 11),
    Sketcher.Constraint("Perpendicular", 5, 13),
    Sketcher.Constraint("Perpendicular", 7, 15),
    Sketcher.Constraint("Perpendicular", 11, 19),
    Sketcher.Constraint("Perpendicular", 13, 21),
    Sketcher.Constraint("Perpendicular", 15, 23),
    Sketcher.Constraint("Perpendicular", 19, 27),
    Sketcher.Constraint("Perpendicular", 21, 29),
    Sketcher.Constraint("Perpendicular", 23, 31),
    Sketcher.Constraint("Horizontal", 4, 1, 12, 1),
    Sketcher.Constraint("Horizontal", 5, 2, 13, 2),
    Sketcher.Constraint("Horizontal", 20, 1, 28, 1),
    Sketcher.Constraint("Vertical", 12, 1, 20, 1),
    Sketcher.Constraint("Diameter", 0, Q("1.125 in")),
    Sketcher.Constraint("Radius", 2, Q("0.5375 in")),
    Sketcher.Constraint("Radius", 4, Q("0.5335 in")),
    Sketcher.Constraint("Angle", 3, Q("-34.27 deg")),
    Sketcher.Constraint("Angle", 7, Q("-79.27 deg")),
    Sketcher.Constraint("DistanceX", 2, 1, 4, 1, 1.7004),
    Sketcher.Constraint("DistanceY", 2, 1, 4, 1, 1.8943),
    Sketcher.Constraint("DistanceX", 10, 1, 12, 1, 1.8943),
    Sketcher.Constraint("DistanceX", 20, 1, 18, 1, 1.7004),
    Sketcher.Constraint("DistanceX", 28, 1, 26, 1, 1.8943),
    Sketcher.Constraint("DistanceX", 7, 2, -1, 1, 2.522921),
    Sketcher.Constraint("DistanceX", -1, 1, 15, 2, 13.313969),
    Sketcher.Constraint("DistanceX", -1, 1, 23, 2, 2.522921),
    Sketcher.Constraint("DistanceX", 31, 2, -1, 1, 13.313969),
])
pocket4 = body.newObject("PartDesign::Pocket", "Pocket003")
pocket4.Profile = sketch5
pocket4.Length = Q("1.415 in")

sketch6 = body.newObject("Sketcher::SketchObject", "Sketch005")
sketch6.AttachmentSupport = (doc.getObject("XZ_Plane"), [""])
sketch6.MapMode = "FlatFace"
sketch6.AttachmentOffset = App.Placement(V(0, 0, -7.125 * 25.4), App.Rotation())
sketch6.addGeometry(Part.Circle(V(0, 0, 0), V(0, 0, 1), 9.525), False)
sketch6.addConstraint([
    Sketcher.Constraint("Coincident", 0, 3, -1, 1),
    Sketcher.Constraint("Diameter", 0, Q("0.75 in")),
])
pad2 = body.newObject("PartDesign::Pad", "Pad001")
pad2.Profile = sketch6
pad2.Length = Q("0.75 in")
pad2.Reversed = True

doc.recompute()
